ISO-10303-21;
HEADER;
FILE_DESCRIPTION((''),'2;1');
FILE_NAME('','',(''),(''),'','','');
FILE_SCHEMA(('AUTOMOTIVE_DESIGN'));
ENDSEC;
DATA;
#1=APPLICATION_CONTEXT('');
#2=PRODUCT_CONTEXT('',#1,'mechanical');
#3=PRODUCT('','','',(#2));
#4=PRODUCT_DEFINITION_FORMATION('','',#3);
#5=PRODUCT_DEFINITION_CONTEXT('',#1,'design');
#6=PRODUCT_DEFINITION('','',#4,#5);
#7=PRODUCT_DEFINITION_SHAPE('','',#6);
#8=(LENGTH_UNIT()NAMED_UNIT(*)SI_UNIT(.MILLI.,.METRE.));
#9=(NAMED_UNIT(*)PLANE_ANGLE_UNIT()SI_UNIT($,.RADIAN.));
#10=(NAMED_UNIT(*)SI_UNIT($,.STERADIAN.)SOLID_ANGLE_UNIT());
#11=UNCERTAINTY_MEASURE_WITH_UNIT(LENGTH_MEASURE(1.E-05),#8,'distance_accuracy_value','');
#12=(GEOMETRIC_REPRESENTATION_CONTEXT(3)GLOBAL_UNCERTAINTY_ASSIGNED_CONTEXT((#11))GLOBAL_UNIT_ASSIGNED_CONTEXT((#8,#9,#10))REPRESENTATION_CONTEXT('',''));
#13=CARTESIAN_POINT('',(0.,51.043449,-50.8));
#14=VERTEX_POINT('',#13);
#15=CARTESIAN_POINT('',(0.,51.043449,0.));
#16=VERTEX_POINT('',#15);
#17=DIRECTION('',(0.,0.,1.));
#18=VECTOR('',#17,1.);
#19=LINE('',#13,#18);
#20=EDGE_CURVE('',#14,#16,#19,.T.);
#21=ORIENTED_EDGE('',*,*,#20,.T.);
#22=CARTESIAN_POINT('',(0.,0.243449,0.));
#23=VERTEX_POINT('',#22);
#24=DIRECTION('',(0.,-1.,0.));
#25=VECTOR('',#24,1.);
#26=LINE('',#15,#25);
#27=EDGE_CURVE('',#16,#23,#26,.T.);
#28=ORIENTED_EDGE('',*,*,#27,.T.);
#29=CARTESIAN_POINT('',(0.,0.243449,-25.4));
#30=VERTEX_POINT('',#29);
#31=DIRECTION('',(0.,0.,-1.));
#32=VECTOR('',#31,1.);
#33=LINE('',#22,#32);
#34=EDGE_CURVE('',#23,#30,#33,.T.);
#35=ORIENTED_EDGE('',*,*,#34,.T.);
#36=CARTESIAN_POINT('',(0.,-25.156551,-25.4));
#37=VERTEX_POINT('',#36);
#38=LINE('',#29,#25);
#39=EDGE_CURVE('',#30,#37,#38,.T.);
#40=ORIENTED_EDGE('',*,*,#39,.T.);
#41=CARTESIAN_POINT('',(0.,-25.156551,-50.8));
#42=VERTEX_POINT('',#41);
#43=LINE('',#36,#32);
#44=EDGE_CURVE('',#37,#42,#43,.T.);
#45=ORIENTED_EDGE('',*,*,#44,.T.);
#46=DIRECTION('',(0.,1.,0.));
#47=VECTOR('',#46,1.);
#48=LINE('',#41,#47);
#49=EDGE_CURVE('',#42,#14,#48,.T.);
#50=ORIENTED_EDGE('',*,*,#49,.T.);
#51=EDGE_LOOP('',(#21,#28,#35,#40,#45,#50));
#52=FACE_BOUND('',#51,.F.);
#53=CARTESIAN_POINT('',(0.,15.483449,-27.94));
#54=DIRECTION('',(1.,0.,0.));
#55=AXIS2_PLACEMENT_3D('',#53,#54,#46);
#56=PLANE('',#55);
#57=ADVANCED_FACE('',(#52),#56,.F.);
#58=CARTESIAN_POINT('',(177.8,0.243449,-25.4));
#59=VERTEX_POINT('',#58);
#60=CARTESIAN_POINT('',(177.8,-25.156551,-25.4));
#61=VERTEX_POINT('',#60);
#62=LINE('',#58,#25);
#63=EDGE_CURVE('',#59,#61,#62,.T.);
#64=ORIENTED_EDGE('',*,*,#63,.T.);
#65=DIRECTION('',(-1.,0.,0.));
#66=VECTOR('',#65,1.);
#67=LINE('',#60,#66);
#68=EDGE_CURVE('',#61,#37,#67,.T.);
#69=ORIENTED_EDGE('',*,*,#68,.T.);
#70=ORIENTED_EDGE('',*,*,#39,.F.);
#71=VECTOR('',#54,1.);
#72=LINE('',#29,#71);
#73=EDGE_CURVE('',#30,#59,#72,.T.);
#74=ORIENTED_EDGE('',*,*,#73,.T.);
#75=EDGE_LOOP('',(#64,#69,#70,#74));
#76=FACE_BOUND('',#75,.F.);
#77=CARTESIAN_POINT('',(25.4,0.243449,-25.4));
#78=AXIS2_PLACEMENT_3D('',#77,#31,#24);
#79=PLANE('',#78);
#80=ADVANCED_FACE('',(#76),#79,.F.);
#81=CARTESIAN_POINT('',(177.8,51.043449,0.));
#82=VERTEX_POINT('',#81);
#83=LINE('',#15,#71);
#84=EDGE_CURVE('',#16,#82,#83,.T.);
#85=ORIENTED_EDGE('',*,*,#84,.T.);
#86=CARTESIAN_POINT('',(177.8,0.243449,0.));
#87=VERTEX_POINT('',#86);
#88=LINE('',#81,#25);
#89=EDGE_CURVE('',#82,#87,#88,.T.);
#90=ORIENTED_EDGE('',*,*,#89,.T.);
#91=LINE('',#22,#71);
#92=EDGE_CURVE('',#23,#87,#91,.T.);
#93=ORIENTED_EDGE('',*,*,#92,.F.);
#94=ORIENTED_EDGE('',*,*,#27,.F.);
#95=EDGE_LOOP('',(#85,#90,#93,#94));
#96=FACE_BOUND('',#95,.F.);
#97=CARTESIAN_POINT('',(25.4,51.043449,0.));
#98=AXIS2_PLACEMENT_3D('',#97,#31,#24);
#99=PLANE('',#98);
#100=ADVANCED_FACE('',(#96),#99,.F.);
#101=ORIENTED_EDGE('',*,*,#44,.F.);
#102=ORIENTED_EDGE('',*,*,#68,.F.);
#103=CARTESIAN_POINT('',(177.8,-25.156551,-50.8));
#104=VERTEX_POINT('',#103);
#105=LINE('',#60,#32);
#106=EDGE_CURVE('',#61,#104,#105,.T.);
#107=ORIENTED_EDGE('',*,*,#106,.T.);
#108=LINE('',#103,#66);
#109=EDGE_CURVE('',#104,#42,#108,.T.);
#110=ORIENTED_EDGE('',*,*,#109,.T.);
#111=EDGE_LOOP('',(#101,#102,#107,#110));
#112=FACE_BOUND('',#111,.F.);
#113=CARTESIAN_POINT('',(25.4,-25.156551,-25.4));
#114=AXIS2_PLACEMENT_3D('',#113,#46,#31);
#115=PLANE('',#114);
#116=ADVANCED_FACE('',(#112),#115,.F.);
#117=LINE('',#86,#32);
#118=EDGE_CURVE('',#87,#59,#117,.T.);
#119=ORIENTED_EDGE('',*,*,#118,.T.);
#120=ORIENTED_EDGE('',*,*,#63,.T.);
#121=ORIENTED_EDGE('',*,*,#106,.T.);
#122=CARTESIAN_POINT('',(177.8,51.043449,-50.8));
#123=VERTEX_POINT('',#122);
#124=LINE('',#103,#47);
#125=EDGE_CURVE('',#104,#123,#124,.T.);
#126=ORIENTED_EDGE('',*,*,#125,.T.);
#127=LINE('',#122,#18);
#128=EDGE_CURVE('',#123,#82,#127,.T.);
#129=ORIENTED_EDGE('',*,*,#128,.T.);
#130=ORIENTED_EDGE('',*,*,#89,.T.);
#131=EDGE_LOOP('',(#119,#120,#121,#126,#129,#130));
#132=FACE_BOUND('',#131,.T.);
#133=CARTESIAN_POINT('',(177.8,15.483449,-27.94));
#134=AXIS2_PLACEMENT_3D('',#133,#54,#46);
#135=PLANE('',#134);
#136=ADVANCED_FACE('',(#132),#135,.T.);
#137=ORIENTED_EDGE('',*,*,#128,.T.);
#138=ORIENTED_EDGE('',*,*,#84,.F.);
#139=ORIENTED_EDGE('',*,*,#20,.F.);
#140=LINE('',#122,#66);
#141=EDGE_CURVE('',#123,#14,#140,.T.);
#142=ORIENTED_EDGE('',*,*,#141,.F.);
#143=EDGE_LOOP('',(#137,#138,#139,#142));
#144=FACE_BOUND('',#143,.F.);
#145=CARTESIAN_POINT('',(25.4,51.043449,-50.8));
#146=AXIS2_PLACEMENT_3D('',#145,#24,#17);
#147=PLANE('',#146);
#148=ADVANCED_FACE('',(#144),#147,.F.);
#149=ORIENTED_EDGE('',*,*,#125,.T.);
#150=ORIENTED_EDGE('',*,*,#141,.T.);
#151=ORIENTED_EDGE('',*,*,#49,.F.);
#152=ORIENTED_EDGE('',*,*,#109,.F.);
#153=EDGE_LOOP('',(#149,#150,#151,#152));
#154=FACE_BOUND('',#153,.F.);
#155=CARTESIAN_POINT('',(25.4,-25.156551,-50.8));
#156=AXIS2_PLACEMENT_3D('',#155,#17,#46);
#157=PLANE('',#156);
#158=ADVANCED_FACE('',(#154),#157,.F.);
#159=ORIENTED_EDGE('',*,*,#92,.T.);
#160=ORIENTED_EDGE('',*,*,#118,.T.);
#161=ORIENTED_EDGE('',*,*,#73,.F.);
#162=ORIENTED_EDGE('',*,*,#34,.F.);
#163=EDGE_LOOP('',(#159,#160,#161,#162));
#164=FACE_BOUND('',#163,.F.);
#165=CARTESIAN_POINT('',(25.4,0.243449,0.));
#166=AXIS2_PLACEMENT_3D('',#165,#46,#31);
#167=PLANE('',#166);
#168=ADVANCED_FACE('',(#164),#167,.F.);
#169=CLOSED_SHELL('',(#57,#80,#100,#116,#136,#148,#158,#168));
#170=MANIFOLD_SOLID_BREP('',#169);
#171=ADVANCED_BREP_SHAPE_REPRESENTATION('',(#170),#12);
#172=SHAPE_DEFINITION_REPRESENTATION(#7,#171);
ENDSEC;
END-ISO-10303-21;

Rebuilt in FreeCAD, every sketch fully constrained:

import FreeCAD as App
import Part
import Sketcher
Q = App.Units.Quantity


def add_polygon(sketch, points):
    """Adds a closed chain of lines whose ends are joined by coincident constraints."""
    first, n = sketch.GeometryCount, len(points)
    for a, b in zip(points, points[1:] + points[:1]):
        sketch.addGeometry(Part.LineSegment(App.Vector(*a, 0), App.Vector(*b, 0)), False)
    for i in range(n):
        sketch.addConstraint(Sketcher.Constraint("Coincident", first + i, 2, first + (i + 1) % n, 1))

doc = App.newDocument("Part")
body = doc.addObject("PartDesign::Body", "Body")

# Sketch on YZ plane
sketch1 = doc.addObject("Sketcher::SketchObject", "Sketch")
body.addObject(sketch1)
sketch1.AttachmentSupport = (doc.YZ_Plane, [""])
sketch1.MapMode = "FlatFace"
add_polygon(sketch1, [(51, 0), (0, 0), (0, -25), (-25, -25), (-25, -51), (51, -51)])  # lines 0-5
sketch1.addConstraint([
    Sketcher.Constraint("Horizontal", 0),
    Sketcher.Constraint("Vertical", 1),
    Sketcher.Constraint("Horizontal", 2),
    Sketcher.Constraint("Vertical", 3),
    Sketcher.Constraint("Horizontal", 4),
    Sketcher.Constraint("Vertical", 5),
    Sketcher.Constraint("PointOnObject", 0, 2, -1),
    Sketcher.Constraint("Equal", 2, 1),
    Sketcher.Constraint("Equal", 1, 3),
    Sketcher.Constraint("Equal", 0, 5),
    Sketcher.Constraint("DistanceX", 0, 2, 0, 1, Q("2 in")),
    Sketcher.Constraint("DistanceX", -1, 1, 0, 2, 0.243449),
])
pad1 = doc.addObject("PartDesign::Pad", "Pad")
body.addObject(pad1)
pad1.Profile = sketch1
pad1.Length = Q("1 in")

# Sketch on YZ plane
sketch2 = doc.addObject("Sketcher::SketchObject", "Sketch001")
body.addObject(sketch2)
sketch2.AttachmentSupport = (doc.YZ_Plane, [""])
sketch2.MapMode = "FlatFace"
sketch2.AttachmentOffset = App.Placement(App.Vector(0, 0, 1 * 25.4), App.Rotation())
add_polygon(sketch2, [(51, -51), (51, 0), (0, 0), (0, -25), (-25, -25), (-25, -51)])  # lines 0-5
sketch2.addConstraint([
    Sketcher.Constraint("Vertical", 0),
    Sketcher.Constraint("Horizontal", 1),
    Sketcher.Constraint("Vertical", 2),
    Sketcher.Constraint("Horizontal", 3),
    Sketcher.Constraint("Vertical", 4),
    Sketcher.Constraint("Horizontal", 5),
    Sketcher.Constraint("PointOnObject", 0, 2, -1),
    Sketcher.Constraint("Equal", 1, 0),
    Sketcher.Constraint("Equal", 3, 2),
    Sketcher.Constraint("Equal", 2, 4),
    Sketcher.Constraint("DistanceX", 1, 2, 1, 1, Q("2 in")),
    Sketcher.Constraint("DistanceX", -1, 1, 0, 2, 51.043449),
])
pad2 = doc.addObject("PartDesign::Pad", "Pad001")
body.addObject(pad2)
pad2.Profile = sketch2
pad2.Length = Q("6 in")

doc.recompute()
